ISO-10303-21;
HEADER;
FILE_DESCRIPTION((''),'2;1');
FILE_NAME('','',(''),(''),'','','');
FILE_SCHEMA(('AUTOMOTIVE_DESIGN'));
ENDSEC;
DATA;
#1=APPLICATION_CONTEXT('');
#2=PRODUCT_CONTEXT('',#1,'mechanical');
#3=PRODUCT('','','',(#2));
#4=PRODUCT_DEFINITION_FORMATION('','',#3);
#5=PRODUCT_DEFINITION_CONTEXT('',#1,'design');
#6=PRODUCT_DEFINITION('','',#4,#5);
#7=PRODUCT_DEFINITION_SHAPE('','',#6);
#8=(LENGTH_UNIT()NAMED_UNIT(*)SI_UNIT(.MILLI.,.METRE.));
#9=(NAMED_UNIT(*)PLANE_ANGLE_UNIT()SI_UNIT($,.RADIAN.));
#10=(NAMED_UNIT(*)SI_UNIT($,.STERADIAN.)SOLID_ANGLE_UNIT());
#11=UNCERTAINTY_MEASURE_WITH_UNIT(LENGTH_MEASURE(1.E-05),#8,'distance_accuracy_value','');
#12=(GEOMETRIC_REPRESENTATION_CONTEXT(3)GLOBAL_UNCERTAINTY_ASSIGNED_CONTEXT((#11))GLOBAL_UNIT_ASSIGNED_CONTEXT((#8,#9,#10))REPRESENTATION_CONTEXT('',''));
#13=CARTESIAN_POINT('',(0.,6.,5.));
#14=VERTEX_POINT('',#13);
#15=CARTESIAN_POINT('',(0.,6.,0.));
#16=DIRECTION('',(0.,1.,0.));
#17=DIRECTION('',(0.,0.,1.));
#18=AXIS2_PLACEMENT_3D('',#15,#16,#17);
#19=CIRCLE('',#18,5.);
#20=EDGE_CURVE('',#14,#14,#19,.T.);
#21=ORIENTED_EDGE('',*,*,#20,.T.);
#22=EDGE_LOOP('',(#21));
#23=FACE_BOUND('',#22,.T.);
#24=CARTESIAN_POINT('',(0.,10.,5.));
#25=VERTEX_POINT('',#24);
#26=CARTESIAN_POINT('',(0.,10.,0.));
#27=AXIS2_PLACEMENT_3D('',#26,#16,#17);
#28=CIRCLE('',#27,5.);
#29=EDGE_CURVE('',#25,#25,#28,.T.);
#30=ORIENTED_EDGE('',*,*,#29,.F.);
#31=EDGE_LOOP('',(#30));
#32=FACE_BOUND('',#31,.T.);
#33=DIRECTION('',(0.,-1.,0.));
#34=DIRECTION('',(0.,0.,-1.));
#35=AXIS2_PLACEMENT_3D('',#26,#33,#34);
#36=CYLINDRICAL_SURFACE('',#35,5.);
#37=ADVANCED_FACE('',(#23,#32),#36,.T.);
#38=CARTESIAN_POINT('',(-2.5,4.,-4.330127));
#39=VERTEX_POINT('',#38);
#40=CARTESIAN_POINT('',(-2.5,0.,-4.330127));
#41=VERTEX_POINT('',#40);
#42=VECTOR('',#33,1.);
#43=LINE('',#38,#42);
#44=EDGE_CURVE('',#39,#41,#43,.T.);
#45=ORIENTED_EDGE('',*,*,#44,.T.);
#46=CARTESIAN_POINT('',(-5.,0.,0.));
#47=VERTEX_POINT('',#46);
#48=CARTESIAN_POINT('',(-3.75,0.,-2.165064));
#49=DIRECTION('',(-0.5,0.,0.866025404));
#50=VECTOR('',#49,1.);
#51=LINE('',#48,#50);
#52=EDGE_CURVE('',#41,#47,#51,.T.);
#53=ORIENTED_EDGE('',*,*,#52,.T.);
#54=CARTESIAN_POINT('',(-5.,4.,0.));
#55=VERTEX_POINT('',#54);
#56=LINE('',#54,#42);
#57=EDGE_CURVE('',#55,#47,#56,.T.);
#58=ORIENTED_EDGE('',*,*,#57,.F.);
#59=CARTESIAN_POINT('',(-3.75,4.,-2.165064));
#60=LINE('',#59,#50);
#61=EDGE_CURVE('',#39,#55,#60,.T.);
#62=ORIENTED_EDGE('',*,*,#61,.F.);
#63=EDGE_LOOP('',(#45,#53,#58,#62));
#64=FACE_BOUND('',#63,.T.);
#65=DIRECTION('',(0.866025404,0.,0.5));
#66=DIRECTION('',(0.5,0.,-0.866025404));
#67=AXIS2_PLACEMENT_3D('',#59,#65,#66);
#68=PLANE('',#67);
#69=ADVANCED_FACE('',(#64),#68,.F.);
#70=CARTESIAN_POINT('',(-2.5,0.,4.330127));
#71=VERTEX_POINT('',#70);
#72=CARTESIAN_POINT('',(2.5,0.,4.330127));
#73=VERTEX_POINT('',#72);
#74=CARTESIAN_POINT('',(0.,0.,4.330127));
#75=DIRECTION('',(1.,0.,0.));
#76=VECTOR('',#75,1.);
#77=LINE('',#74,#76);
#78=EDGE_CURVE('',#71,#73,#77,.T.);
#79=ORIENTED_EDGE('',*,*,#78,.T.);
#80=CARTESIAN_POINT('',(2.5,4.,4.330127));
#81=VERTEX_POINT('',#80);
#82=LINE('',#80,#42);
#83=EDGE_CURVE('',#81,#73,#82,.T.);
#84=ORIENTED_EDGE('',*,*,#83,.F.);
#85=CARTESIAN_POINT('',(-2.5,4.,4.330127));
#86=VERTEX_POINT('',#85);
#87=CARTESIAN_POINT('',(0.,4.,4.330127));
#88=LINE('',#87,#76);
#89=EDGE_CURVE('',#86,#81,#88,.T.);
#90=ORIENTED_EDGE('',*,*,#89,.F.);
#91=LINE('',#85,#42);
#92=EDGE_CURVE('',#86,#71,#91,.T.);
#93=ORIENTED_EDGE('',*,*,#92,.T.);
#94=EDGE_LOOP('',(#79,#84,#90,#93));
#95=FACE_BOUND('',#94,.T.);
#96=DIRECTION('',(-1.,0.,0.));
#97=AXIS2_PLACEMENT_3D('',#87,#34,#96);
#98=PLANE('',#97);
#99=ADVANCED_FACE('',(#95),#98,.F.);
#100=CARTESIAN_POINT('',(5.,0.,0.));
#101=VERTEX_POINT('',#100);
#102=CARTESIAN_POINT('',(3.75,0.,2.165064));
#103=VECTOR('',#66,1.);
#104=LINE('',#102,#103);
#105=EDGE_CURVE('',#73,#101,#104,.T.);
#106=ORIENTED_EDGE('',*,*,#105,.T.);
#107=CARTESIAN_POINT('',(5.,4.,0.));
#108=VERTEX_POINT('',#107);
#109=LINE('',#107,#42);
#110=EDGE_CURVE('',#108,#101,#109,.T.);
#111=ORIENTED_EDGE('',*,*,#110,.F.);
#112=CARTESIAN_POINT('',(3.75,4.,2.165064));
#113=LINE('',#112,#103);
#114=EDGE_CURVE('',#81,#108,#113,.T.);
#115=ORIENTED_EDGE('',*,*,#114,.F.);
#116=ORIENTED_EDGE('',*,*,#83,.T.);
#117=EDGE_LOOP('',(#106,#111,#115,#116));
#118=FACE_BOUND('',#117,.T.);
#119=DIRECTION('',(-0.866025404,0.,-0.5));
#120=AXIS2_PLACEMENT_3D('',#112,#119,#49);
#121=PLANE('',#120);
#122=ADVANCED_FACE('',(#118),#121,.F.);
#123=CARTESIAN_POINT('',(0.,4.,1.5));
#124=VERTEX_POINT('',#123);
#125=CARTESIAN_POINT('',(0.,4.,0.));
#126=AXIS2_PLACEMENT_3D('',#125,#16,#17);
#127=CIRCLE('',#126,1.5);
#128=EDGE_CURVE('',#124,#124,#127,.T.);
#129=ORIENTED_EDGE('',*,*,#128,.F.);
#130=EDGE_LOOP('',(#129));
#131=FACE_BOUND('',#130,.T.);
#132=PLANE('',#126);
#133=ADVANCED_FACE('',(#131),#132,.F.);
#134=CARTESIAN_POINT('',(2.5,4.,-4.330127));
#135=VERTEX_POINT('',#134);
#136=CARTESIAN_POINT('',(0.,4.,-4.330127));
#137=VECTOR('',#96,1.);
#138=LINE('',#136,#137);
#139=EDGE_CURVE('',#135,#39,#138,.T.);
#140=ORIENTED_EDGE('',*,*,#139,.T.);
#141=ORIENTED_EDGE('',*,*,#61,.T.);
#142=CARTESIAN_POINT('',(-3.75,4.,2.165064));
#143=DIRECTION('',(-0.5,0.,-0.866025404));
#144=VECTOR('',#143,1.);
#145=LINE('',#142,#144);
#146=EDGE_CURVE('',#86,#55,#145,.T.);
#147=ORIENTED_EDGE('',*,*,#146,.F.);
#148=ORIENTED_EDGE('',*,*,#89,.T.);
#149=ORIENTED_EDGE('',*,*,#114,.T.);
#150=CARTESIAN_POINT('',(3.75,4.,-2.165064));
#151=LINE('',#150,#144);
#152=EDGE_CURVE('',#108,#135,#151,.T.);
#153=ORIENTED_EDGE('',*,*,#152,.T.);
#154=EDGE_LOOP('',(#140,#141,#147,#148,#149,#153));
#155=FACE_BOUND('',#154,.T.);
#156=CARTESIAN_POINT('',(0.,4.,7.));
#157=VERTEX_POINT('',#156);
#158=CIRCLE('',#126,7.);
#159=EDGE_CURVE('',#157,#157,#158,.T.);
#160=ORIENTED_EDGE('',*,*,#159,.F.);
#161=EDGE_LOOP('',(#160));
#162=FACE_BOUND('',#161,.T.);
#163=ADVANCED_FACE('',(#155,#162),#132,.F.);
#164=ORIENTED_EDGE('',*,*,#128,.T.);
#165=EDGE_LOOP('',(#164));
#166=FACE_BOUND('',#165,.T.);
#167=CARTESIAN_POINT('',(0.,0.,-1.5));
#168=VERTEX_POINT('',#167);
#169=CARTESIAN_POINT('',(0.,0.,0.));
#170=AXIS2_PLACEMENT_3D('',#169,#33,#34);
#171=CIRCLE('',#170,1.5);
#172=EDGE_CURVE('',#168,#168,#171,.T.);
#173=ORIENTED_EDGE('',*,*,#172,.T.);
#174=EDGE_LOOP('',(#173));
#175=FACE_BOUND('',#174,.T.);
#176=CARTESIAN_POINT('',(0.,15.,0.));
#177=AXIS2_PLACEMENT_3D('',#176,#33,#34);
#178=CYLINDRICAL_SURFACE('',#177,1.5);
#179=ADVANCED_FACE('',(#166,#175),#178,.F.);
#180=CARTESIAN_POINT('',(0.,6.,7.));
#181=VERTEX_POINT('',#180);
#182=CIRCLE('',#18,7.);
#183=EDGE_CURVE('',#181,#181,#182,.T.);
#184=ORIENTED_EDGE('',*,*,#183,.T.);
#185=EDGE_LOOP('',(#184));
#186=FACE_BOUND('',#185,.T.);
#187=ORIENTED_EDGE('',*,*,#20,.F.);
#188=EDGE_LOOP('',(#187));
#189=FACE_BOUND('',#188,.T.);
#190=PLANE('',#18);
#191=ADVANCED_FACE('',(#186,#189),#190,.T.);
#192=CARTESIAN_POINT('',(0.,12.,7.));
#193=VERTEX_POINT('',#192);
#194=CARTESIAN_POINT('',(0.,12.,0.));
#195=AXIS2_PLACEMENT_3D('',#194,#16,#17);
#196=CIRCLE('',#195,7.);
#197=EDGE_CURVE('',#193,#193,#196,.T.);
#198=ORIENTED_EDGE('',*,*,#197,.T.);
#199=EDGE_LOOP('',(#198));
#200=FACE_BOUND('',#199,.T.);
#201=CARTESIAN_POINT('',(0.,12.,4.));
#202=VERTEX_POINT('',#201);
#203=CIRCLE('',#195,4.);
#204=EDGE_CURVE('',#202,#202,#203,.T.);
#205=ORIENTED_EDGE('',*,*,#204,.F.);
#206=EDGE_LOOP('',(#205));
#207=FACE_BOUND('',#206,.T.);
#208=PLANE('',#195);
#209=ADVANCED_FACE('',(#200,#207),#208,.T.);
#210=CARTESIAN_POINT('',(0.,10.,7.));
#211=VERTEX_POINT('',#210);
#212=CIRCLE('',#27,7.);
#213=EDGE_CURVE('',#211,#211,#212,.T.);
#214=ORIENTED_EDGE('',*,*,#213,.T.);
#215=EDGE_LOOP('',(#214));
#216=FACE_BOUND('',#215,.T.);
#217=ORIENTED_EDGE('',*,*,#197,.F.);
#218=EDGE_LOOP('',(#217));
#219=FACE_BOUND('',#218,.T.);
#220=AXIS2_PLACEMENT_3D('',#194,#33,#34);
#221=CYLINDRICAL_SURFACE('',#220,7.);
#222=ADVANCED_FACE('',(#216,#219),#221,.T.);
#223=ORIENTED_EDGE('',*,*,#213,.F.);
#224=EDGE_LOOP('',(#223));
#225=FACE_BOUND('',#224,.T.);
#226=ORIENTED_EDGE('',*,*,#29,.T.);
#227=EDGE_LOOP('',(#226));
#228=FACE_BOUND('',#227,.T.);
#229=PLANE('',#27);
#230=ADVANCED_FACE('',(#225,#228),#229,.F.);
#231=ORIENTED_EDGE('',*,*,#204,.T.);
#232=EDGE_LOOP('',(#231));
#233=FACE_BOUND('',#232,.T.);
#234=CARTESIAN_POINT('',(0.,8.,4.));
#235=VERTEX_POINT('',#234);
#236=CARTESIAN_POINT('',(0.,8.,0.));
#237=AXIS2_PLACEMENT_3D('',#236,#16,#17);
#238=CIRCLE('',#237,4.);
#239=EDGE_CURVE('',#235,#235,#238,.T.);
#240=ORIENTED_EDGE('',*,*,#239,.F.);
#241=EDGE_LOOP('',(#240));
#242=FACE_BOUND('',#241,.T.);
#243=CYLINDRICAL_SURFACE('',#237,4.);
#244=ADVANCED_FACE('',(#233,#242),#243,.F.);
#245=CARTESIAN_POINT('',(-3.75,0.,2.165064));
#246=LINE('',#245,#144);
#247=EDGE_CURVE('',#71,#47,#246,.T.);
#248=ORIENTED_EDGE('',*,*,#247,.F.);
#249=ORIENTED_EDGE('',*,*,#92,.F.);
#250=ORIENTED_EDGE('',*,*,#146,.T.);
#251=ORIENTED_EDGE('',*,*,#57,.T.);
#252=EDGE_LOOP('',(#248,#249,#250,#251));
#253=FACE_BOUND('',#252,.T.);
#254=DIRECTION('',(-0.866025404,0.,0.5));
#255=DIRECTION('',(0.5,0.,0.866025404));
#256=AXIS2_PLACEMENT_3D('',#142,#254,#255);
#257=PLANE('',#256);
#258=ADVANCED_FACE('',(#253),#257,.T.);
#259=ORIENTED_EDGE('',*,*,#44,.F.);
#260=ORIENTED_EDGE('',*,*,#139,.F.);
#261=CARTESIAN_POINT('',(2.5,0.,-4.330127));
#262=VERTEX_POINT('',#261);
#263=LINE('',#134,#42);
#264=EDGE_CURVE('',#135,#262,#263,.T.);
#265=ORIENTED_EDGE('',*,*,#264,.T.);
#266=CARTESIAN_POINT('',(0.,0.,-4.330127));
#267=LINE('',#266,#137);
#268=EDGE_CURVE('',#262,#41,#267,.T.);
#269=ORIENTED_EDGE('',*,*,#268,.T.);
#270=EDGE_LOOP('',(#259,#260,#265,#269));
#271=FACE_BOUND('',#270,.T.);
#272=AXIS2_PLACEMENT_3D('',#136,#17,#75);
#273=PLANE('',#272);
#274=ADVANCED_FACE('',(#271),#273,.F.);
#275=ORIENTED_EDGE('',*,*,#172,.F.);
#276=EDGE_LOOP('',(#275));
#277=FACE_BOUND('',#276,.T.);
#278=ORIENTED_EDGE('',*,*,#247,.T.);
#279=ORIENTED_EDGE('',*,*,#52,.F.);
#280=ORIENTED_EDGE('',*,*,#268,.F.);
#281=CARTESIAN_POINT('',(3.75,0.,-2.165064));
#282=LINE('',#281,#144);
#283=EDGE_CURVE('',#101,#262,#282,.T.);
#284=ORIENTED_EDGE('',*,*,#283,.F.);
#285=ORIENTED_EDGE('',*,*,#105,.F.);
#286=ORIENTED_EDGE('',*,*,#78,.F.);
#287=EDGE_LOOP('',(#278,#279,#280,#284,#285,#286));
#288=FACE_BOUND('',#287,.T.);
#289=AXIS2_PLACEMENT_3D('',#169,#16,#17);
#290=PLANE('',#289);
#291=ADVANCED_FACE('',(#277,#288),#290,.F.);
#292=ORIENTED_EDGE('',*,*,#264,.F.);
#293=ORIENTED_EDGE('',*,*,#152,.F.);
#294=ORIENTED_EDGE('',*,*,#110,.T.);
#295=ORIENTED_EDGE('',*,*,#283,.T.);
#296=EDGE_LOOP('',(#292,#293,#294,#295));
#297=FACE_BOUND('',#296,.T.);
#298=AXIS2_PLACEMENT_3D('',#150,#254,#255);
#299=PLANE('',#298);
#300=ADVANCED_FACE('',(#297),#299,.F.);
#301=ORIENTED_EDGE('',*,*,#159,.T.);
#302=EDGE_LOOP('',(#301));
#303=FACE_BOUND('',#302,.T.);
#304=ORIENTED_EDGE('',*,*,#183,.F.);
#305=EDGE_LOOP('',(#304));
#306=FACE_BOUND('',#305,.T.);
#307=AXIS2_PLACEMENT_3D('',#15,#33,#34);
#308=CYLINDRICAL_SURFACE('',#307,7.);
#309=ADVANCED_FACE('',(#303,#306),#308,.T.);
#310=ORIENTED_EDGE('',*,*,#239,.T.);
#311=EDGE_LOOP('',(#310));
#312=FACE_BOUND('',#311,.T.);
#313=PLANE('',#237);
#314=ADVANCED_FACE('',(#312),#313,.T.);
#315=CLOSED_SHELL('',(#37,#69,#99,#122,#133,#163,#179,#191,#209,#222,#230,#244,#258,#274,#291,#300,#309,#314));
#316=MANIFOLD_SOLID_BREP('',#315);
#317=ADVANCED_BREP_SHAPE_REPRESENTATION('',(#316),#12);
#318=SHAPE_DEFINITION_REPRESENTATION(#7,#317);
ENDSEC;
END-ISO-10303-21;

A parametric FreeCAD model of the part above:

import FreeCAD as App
import Part
import Sketcher
from FreeCAD import Vector
Q = App.Units.Quantity

doc = App.newDocument("Part")
body = doc.addObject("PartDesign::Body", "Body")

# Sketch on XZ plane
sketch1 = doc.addObject("Sketcher::SketchObject", "Sketch")
body.addObject(sketch1)
sketch1.AttachmentSupport = (doc.XZ_Plane, [""])
sketch1.MapMode = "FlatFace"
sketch1.addGeometry(Part.LineSegment(Vector(-2.5, -4.330127, 0), Vector(-5, 0, 0)), False)
sketch1.addGeometry(Part.LineSegment(Vector(-5, 0, 0), Vector(-2.5, 4.330127, 0)), False)
sketch1.addGeometry(Part.LineSegment(Vector(-2.5, 4.330127, 0), Vector(2.5, 4.330127, 0)), False)
sketch1.addGeometry(Part.LineSegment(Vector(2.5, 4.330127, 0), Vector(5, 0, 0)), False)
sketch1.addGeometry(Part.LineSegment(Vector(5, 0, 0), Vector(2.5, -4.330127, 0)), False)
sketch1.addGeometry(Part.LineSegment(Vector(2.5, -4.330127, 0), Vector(-2.5, -4.330127, 0)), False)
sketch1.addConstraint(Sketcher.Constraint("Coincident", 0, 2, 1, 1))
sketch1.addConstraint(Sketcher.Constraint("Coincident", 1, 2, 2, 1))
sketch1.addConstraint(Sketcher.Constraint("Coincident", 2, 2, 3, 1))
sketch1.addConstraint(Sketcher.Constraint("Coincident", 3, 2, 4, 1))
sketch1.addConstraint(Sketcher.Constraint("Coincident", 4, 2, 5, 1))
sketch1.addConstraint(Sketcher.Constraint("Coincident", 5, 2, 0, 1))
sketch1.addConstraint(Sketcher.Constraint("Horizontal", 2))
sketch1.addConstraint(Sketcher.Constraint("Horizontal", 5))
sketch1.addConstraint(Sketcher.Constraint("Symmetric", 0, 2, 3, 2, -1, 1))
sketch1.addConstraint(Sketcher.Constraint("Symmetric", 1, 2, 4, 2, -1, 1))
sketch1.addConstraint(Sketcher.Constraint("PointOnObject", 0, 2, -1))
sketch1.addConstraint(Sketcher.Constraint("Parallel", 0, 3))
sketch1.addConstraint(Sketcher.Constraint("Vertical", 2, 2, 4, 2))
sketch1.addConstraint(Sketcher.Constraint("DistanceX", 2, 1, 2, 2, 5.0))
sketch1.addConstraint(Sketcher.Constraint("Angle", 0, Q("120 deg")))
sketch1.addConstraint(Sketcher.Constraint("Distance", 0, 5.0))
pad1 = doc.addObject("PartDesign::Pad", "Pad")
body.addObject(pad1)
pad1.Profile = sketch1
pad1.Length = 4
pad1.Reversed = True

# Sketch on XZ plane
sketch2 = doc.addObject("Sketcher::SketchObject", "Sketch001")
body.addObject(sketch2)
sketch2.AttachmentSupport = (doc.XZ_Plane, [""])
sketch2.MapMode = "FlatFace"
sketch2.addGeometry(Part.Circle(Vector(0, 0, 0), Vector(0, 0, 1), 1.5), False)
sketch2.addConstraint(Sketcher.Constraint("Coincident", 0, 3, -1, 1))
sketch2.addConstraint(Sketcher.Constraint("Diameter", 0, 3.0))
pocket1 = doc.addObject("PartDesign::Pocket", "Pocket")
body.addObject(pocket1)
pocket1.Profile = sketch2
pocket1.Length = 15

# Sketch on XZ plane
sketch3 = doc.addObject("Sketcher::SketchObject", "Sketch002")
body.addObject(sketch3)
sketch3.AttachmentSupport = (doc.XZ_Plane, [""])
sketch3.MapMode = "FlatFace"
sketch3.AttachmentOffset = App.Placement(Vector(0, 0, -4), App.Rotation())
sketch3.addGeometry(Part.Circle(Vector(0, 0, 0), Vector(0, 0, 1), 7), False)
sketch3.addConstraint(Sketcher.Constraint("Coincident", 0, 3, -1, 1))
sketch3.addConstraint(Sketcher.Constraint("Diameter", 0, 14.0))
pad2 = doc.addObject("PartDesign::Pad", "Pad001")
body.addObject(pad2)
pad2.Profile = sketch3
pad2.Length = 2
pad2.Reversed = True

# Sketch on XZ plane
sketch4 = doc.addObject("Sketcher::SketchObject", "Sketch003")
body.addObject(sketch4)
sketch4.AttachmentSupport = (doc.XZ_Plane, [""])
sketch4.MapMode = "FlatFace"
sketch4.AttachmentOffset = App.Placement(Vector(0, 0, -6), App.Rotation())
sketch4.addGeometry(Part.Circle(Vector(0, 0, 0), Vector(0, 0, 1), 5), False)
sketch4.addConstraint(Sketcher.Constraint("Coincident", 0, 3, -1, 1))
sketch4.addConstraint(Sketcher.Constraint("Diameter", 0, 10.0))
pad3 = doc.addObject("PartDesign::Pad", "Pad002")
body.addObject(pad3)
pad3.Profile = sketch4
pad3.Length = 4
pad3.Reversed = True

# Sketch on XZ plane
sketch5 = doc.addObject("Sketcher::SketchObject", "Sketch004")
body.addObject(sketch5)
sketch5.AttachmentSupport = (doc.XZ_Plane, [""])
sketch5.MapMode = "FlatFace"
sketch5.AttachmentOffset = App.Placement(Vector(0, 0, -10), App.Rotation())
sketch5.addGeometry(Part.Circle(Vector(0, 0, 0), Vector(0, 0, 1), 7), False)
sketch5.addConstraint(Sketcher.Constraint("Coincident", 0, 3, -1, 1))
sketch5.addConstraint(Sketcher.Constraint("Diameter", 0, 14.0))
pad4 = doc.addObject("PartDesign::Pad", "Pad003")
body.addObject(pad4)
pad4.Profile = sketch5
pad4.Length = 2
pad4.Reversed = True

# Sketch on XZ plane
sketch6 = doc.addObject("Sketcher::SketchObject", "Sketch005")
body.addObject(sketch6)
sketch6.AttachmentSupport = (doc.XZ_Plane, [""])
sketch6.MapMode = "FlatFace"
sketch6.AttachmentOffset = App.Placement(Vector(0, 0, -12), App.Rotation())
sketch6.addGeometry(Part.Circle(Vector(0, 0, 0), Vector(0, 0, 1), 4), False)
sketch6.addConstraint(Sketcher.Constraint("Coincident", 0, 3, -1, 1))
sketch6.addConstraint(Sketcher.Constraint("Diameter", 0, 8.0))
pocket2 = doc.addObject("PartDesign::Pocket", "Pocket001")
body.addObject(pocket2)
pocket2.Profile = sketch6
pocket2.Length = 4
pocket2.Reversed = True

doc.recompute()
